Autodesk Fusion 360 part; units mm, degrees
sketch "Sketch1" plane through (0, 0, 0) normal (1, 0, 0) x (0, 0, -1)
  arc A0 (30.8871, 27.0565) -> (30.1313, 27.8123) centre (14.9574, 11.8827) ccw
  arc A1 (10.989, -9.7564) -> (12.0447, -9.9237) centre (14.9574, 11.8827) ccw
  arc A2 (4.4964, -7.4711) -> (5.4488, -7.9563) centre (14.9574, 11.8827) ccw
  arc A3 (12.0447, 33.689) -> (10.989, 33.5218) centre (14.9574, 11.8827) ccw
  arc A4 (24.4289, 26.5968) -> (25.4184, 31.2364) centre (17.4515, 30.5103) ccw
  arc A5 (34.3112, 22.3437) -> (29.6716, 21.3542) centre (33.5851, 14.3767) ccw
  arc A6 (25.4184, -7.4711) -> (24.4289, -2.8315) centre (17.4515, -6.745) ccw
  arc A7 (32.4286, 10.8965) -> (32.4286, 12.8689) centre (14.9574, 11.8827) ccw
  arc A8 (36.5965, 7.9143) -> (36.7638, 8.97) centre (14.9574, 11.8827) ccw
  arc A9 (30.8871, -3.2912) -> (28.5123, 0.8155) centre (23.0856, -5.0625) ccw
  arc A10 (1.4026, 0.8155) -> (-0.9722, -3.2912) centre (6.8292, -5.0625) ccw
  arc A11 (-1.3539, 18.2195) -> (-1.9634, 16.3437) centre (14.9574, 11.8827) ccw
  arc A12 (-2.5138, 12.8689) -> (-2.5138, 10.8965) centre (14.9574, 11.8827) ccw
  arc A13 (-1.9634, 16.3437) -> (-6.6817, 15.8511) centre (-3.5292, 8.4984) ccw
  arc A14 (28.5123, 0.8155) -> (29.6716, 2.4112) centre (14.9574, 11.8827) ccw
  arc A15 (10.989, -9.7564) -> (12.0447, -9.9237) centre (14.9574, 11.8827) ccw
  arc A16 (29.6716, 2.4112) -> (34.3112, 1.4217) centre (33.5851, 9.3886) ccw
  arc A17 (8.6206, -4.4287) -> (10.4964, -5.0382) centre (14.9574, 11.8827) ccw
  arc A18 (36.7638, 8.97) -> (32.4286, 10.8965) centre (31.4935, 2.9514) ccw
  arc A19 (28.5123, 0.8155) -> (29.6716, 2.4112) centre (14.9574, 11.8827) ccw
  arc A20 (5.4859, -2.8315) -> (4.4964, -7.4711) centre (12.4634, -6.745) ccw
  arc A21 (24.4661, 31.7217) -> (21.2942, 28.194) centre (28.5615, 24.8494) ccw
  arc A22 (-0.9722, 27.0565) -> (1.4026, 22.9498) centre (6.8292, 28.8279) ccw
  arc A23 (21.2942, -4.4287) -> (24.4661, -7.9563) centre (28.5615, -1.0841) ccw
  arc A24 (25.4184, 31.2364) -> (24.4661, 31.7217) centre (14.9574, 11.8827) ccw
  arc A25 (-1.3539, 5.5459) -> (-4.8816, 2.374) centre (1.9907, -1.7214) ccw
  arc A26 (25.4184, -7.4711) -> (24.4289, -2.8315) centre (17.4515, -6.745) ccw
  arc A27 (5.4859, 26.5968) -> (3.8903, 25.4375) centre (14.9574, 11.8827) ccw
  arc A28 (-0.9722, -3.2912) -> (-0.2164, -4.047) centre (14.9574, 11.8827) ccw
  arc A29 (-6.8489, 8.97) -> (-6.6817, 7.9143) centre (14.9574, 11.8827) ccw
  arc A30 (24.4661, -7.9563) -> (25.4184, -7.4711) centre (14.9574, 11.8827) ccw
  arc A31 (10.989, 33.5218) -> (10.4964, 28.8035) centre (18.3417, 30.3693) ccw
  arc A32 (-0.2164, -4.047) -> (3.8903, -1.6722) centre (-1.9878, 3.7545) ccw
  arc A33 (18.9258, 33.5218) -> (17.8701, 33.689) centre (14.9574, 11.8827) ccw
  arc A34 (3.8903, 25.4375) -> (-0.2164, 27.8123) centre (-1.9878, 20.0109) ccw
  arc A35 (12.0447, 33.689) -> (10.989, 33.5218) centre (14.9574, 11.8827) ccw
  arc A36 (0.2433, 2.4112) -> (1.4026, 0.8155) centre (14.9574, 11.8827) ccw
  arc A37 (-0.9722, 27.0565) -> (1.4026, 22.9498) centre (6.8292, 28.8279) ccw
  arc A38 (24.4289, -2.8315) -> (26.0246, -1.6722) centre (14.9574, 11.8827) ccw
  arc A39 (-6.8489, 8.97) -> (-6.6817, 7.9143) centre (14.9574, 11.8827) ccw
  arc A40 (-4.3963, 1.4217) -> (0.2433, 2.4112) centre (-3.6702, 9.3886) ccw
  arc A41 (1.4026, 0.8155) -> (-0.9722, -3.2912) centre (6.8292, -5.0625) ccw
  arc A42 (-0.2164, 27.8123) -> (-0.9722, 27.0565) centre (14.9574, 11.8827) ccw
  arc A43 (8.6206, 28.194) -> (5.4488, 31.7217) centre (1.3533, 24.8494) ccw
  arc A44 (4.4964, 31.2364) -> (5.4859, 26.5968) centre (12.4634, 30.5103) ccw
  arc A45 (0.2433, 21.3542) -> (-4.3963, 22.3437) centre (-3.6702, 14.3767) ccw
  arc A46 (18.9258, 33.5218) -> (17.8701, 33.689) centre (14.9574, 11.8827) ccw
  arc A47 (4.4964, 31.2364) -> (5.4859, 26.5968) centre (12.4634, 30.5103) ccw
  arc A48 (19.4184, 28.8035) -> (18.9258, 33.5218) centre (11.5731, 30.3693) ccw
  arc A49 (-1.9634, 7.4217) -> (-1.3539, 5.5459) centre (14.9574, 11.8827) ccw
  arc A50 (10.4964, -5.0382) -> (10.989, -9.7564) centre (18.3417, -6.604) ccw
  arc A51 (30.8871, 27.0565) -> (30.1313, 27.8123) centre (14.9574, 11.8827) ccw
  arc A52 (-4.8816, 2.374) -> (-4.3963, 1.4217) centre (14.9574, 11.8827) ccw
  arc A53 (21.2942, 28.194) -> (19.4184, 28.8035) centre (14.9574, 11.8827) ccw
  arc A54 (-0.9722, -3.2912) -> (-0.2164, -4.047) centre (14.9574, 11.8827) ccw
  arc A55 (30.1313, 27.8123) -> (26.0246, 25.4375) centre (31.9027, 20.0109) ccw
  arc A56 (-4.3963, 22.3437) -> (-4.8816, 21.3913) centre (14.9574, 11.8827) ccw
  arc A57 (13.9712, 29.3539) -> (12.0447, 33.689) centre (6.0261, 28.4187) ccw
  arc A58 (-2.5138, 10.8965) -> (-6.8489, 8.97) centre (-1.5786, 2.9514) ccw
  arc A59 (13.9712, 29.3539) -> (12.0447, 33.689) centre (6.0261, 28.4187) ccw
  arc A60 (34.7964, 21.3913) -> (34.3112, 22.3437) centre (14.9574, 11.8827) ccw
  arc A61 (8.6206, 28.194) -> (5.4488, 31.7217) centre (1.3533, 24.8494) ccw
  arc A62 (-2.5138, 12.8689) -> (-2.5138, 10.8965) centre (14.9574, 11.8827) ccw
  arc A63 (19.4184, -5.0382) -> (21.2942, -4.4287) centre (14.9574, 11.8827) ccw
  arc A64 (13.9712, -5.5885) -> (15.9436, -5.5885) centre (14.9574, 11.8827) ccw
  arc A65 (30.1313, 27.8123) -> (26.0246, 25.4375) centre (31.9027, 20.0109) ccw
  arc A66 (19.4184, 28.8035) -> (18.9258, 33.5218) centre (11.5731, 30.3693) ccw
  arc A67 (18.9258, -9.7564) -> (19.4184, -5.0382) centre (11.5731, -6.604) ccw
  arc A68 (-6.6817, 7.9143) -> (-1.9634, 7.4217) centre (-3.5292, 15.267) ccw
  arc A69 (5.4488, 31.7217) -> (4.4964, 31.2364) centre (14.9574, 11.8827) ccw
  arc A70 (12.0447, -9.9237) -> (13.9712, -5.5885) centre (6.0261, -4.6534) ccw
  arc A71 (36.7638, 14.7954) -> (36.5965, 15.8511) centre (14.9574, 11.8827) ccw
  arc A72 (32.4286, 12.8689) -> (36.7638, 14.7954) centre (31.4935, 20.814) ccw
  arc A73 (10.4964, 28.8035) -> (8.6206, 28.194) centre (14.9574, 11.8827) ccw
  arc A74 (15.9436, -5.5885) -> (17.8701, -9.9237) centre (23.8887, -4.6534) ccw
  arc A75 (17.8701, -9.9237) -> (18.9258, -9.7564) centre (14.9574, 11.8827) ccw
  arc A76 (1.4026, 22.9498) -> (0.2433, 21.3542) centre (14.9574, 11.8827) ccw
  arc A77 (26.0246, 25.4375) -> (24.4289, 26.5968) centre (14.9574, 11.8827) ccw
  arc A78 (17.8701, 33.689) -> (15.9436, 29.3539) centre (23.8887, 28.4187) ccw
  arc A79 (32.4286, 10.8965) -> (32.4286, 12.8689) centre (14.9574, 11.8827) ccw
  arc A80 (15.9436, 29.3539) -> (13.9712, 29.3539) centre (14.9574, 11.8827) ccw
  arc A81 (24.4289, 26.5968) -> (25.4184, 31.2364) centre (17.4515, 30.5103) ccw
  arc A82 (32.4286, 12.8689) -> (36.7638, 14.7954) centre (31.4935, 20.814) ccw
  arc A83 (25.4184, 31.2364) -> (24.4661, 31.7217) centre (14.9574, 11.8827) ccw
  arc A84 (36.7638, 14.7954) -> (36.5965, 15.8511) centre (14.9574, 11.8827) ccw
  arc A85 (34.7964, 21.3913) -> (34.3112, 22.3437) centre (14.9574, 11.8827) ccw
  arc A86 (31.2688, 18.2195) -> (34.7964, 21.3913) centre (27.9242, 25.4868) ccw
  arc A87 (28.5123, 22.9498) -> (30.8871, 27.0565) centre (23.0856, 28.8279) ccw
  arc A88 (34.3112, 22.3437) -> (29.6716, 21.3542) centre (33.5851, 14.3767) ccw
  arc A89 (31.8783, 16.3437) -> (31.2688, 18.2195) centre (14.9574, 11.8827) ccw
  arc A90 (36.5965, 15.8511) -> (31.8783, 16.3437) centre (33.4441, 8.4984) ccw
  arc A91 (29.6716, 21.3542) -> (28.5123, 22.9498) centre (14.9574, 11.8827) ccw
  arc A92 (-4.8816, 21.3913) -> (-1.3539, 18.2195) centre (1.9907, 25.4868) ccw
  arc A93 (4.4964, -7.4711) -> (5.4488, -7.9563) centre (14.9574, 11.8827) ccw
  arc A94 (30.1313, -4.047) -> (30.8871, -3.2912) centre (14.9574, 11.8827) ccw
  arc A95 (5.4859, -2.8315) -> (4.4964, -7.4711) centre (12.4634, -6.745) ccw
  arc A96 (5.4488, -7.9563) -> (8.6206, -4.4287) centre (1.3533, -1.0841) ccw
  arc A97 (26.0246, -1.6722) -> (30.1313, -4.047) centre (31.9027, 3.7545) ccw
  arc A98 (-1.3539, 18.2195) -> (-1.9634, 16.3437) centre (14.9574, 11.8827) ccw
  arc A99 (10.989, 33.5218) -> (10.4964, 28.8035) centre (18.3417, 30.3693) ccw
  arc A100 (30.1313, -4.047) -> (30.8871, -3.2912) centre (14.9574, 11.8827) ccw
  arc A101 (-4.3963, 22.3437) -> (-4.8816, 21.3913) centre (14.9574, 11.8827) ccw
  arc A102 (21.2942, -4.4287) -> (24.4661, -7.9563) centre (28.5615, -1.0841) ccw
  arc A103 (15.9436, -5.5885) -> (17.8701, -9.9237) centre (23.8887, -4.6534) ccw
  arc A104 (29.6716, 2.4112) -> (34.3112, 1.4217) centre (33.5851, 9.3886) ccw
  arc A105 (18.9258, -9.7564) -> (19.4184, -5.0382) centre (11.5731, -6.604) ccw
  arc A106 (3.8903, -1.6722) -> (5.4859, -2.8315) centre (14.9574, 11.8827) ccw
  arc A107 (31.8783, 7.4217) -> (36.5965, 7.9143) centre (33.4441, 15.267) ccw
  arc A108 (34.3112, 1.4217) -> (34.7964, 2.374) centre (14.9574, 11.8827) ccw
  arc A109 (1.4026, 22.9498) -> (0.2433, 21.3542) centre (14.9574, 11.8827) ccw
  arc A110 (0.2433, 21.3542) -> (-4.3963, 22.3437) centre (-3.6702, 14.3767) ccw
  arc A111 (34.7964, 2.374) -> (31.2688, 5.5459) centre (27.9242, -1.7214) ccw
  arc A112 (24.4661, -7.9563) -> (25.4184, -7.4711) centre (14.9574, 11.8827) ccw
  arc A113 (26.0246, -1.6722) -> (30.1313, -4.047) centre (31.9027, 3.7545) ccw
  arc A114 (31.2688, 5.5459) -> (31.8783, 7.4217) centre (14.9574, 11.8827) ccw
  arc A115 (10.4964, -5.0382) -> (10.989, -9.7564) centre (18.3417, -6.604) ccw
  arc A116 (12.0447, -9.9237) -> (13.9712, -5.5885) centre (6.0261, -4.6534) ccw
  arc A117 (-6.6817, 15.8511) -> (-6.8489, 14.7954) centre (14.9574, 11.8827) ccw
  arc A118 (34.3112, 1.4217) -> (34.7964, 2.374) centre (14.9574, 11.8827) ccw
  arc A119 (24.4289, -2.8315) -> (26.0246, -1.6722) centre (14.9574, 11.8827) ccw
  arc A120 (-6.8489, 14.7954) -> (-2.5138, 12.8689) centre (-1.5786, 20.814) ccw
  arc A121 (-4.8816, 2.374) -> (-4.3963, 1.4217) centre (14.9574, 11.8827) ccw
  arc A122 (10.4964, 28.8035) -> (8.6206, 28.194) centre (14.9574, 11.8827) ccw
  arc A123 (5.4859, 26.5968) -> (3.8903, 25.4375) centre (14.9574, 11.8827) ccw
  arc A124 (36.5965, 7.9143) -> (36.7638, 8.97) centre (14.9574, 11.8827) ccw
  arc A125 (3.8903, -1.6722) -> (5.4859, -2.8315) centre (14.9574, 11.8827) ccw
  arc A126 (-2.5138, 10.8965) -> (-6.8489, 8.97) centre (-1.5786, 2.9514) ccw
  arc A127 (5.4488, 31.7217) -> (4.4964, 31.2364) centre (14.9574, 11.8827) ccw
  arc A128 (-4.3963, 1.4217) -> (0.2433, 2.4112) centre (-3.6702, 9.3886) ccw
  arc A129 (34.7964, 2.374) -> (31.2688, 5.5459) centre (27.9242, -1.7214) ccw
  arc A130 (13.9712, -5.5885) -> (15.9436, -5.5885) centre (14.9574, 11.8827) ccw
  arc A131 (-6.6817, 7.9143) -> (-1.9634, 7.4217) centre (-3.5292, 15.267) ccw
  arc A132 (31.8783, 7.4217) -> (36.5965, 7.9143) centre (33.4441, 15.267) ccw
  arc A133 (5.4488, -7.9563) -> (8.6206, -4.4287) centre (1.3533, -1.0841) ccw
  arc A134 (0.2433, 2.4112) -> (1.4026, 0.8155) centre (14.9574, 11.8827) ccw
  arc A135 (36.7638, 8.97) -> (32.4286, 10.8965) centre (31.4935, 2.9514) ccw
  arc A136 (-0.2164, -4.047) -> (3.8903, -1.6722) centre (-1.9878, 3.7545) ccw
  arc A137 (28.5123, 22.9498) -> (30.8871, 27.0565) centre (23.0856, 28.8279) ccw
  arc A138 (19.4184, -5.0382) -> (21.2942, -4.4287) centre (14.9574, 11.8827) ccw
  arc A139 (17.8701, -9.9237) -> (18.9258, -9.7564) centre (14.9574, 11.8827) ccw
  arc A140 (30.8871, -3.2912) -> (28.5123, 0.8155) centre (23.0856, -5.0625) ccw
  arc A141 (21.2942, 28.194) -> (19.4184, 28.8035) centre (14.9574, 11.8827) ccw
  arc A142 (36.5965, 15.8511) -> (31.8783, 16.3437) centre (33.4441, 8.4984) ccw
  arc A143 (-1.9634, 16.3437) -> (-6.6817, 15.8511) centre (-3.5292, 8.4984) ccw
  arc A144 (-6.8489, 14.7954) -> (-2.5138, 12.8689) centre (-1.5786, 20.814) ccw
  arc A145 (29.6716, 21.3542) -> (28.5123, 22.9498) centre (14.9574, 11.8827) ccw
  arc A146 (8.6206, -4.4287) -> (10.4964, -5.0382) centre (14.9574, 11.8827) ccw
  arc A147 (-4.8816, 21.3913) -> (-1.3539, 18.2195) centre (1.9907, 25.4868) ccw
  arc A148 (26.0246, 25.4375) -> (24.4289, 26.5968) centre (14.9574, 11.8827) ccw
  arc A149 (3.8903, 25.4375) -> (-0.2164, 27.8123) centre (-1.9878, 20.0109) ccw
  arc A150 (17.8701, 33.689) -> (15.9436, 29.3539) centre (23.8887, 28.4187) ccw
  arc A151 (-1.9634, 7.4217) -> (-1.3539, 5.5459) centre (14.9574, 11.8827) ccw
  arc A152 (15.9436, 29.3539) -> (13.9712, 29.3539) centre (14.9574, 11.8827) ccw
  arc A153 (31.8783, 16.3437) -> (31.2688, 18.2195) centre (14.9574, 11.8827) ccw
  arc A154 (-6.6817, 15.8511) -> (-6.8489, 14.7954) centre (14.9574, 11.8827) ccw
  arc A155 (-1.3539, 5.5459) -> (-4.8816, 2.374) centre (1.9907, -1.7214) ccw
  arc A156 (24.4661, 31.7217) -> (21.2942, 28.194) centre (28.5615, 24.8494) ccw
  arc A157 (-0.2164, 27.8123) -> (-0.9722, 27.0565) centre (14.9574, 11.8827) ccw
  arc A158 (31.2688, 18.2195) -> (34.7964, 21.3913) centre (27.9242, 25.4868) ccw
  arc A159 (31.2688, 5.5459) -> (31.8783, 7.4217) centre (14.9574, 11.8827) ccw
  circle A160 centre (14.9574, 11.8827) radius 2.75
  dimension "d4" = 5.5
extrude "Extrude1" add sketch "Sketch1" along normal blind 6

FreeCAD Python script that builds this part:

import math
import FreeCAD as App
import Part
import Sketcher
Q = App.Units.Quantity

doc = App.newDocument("Part")
body = doc.addObject("PartDesign::Body", "Body")

sketch1 = doc.addObject("Sketcher::SketchObject", "Sketch")
body.addObject(sketch1)
sketch1.AttachmentSupport = (doc.YZ_Plane, [""])
sketch1.MapMode = "FlatFace"
sketch1.addGeometry([
    Part.ArcOfCircle(Part.Circle(App.Vector(28.8279, -23.0856, 0), App.Vector(0, 0, 1), 8.000071), math.radians(-137.286602), math.radians(-102.792616)),
    Part.ArcOfCircle(Part.Circle(App.Vector(11.886765, -14.961565, 0), App.Vector(0, 0, 1), 21.99417), math.radians(-46.392354), math.radians(-43.607646)),
    Part.ArcOfCircle(Part.Circle(App.Vector(20.0109, -31.9027, 0), App.Vector(0, 0, 1), 7.999981), math.radians(12.792774), math.radians(47.287129)),
    Part.ArcOfCircle(Part.Circle(App.Vector(11.893148, -14.965451, 0), App.Vector(0, 0, 1), 17.48583), math.radians(-39.23211), math.radians(-32.765826)),
    Part.ArcOfCircle(Part.Circle(App.Vector(30.5103, -17.4515, 0), App.Vector(0, 0, 1), 7.999975), math.radians(-119.287294), math.radians(-84.792473)),
    Part.ArcOfCircle(Part.Circle(App.Vector(11.777378, -14.902114, 0), App.Vector(0, 0, 1), 22.118902), math.radians(-28.388224), math.radians(-25.619314)),
    Part.ArcOfCircle(Part.Circle(App.Vector(24.8494, -28.5615, 0), App.Vector(0, 0, 1), 8.000051), math.radians(30.791923), math.radians(65.286886)),
    Part.ArcOfCircle(Part.Circle(App.Vector(11.878873, -14.956036, 0), App.Vector(0, 0, 1), 17.50302), math.radians(-21.230346), math.radians(-14.770518)),
    Part.ArcOfCircle(Part.Circle(App.Vector(30.3693, -11.5731, 0), App.Vector(0, 0, 1), 8.000029), math.radians(-101.287038), math.radians(-66.79257)),
    Part.ArcOfCircle(Part.Circle(App.Vector(11.894324, -14.959386, 0), App.Vector(0, 0, 1), 21.988182), math.radians(-10.392386), math.radians(-7.60693)),
    Part.ArcOfCircle(Part.Circle(App.Vector(28.4187, -23.8887, 0), App.Vector(0, 0, 1), 7.999976), math.radians(48.79238), math.radians(83.286732)),
    Part.ArcOfCircle(Part.Circle(App.Vector(11.8827, -14.9574, 0), App.Vector(0, 0, 1), 17.499012), math.radians(-3.230757), math.radians(3.230757)),
    Part.ArcOfCircle(Part.Circle(App.Vector(28.4187, -6.0261, 0), App.Vector(0, 0, 1), 7.999951), math.radians(-83.286732), math.radians(-48.79238)),
    Part.ArcOfCircle(Part.Circle(App.Vector(11.871018, -14.959105, 0), App.Vector(0, 0, 1), 22.011772), math.radians(7.608423), math.radians(10.390893)),
    Part.ArcOfCircle(Part.Circle(App.Vector(30.3693, -18.3417, 0), App.Vector(0, 0, 1), 8.000028), math.radians(66.79257), math.radians(101.287038)),
    Part.ArcOfCircle(Part.Circle(App.Vector(11.886596, -14.956254, 0), App.Vector(0, 0, 1), 17.494912), math.radians(14.769019), math.radians(21.231845)),
    Part.ArcOfCircle(Part.Circle(App.Vector(24.848771, -1.352343, 0), App.Vector(0, 0, 1), 8.001132), math.radians(-65.285656), math.radians(-30.796116)),
    Part.ArcOfCircle(Part.Circle(App.Vector(11.923014, -14.937472, 0), App.Vector(0, 0, 1), 21.955019), math.radians(25.606428), math.radians(28.396243)),
    Part.ArcOfCircle(Part.Circle(App.Vector(30.5103, -12.4634, 0), App.Vector(0, 0, 1), 8.000019), math.radians(84.792538), math.radians(119.286944)),
    Part.ArcOfCircle(Part.Circle(App.Vector(11.888232, -14.953614, 0), App.Vector(0, 0, 1), 17.492272), math.radians(32.768858), math.radians(39.232493)),
    Part.ArcOfCircle(Part.Circle(App.Vector(20.0109, 1.9878, 0), App.Vector(0, 0, 1), 8.000003), math.radians(-47.287129), math.radians(-12.792774)),
    Part.ArcOfCircle(Part.Circle(App.Vector(11.8827, -14.9574, 0), App.Vector(0, 0, 1), 21.999917), math.radians(43.60801), math.radians(46.39199)),
    Part.ArcOfCircle(Part.Circle(App.Vector(28.8279, -6.8292, 0), App.Vector(0, 0, 1), 7.999981), math.radians(102.792774), math.radians(137.287129)),
    Part.ArcOfCircle(Part.Circle(App.Vector(11.878606, -14.962714, 0), App.Vector(0, 0, 1), 17.505657), math.radians(50.769981), math.radians(57.228668)),
    Part.ArcOfCircle(Part.Circle(App.Vector(14.3767, 3.6702, 0), App.Vector(0, 0, 1), 8.000062), math.radians(-29.286944), math.radians(5.207462)),
    Part.ArcOfCircle(Part.Circle(App.Vector(11.861713, -14.997382, 0), App.Vector(0, 0, 1), 22.045112), math.radians(61.609459), math.radians(64.38787)),
    Part.ArcOfCircle(Part.Circle(App.Vector(25.486073, -1.989815, 0), App.Vector(0, 0, 1), 7.99897), math.radians(120.791308), math.radians(155.290465)),
    Part.ArcOfCircle(Part.Circle(App.Vector(11.881336, -14.961227, 0), App.Vector(0, 0, 1), 17.50302), math.radians(68.769654), math.radians(75.229482)),
    Part.ArcOfCircle(Part.Circle(App.Vector(8.4984, 3.5292, 0), App.Vector(0, 0, 1), 8.000029), math.radians(-11.287038), math.radians(23.20743)),
    Part.ArcOfCircle(Part.Circle(App.Vector(11.884686, -14.945776, 0), App.Vector(0, 0, 1), 21.988182), math.radians(79.607614), math.radians(82.39307)),
    Part.ArcOfCircle(Part.Circle(App.Vector(20.814, 1.5786, 0), App.Vector(0, 0, 1), 7.999976), math.radians(138.79238), math.radians(173.286732)),
    Part.ArcOfCircle(Part.Circle(App.Vector(11.8827, -14.9574, 0), App.Vector(0, 0, 1), 17.499012), math.radians(86.769243), math.radians(93.230757)),
    Part.ArcOfCircle(Part.Circle(App.Vector(2.9514, 1.5786, 0), App.Vector(0, 0, 1), 7.999951), math.radians(6.713268), math.radians(41.20762)),
    Part.ArcOfCircle(Part.Circle(App.Vector(11.884405, -14.969082, 0), App.Vector(0, 0, 1), 22.011772), math.radians(97.608423), math.radians(100.390893)),
    Part.ArcOfCircle(Part.Circle(App.Vector(15.267, 3.5292, 0), App.Vector(0, 0, 1), 8.000028), math.radians(156.79257), math.radians(191.287038)),
    Part.ArcOfCircle(Part.Circle(App.Vector(11.881554, -14.953504, 0), App.Vector(0, 0, 1), 17.494912), math.radians(104.769019), math.radians(111.231845)),
    Part.ArcOfCircle(Part.Circle(App.Vector(-1.7214, -1.9907, 0), App.Vector(0, 0, 1), 8), math.radians(24.713114), math.radians(59.208077)),
    Part.ArcOfCircle(Part.Circle(App.Vector(11.830552, -14.851906, 0), App.Vector(0, 0, 1), 21.882359), math.radians(115.604346), math.radians(118.403193)),
    Part.ArcOfCircle(Part.Circle(App.Vector(9.3886, 3.6702, 0), App.Vector(0, 0, 1), 7.99992), math.radians(174.792473), math.radians(209.287294)),
    Part.ArcOfCircle(Part.Circle(App.Vector(11.89016, -14.968302, 0), App.Vector(0, 0, 1), 17.512177), math.radians(122.770695), math.radians(129.227241)),
    Part.ArcOfCircle(Part.Circle(App.Vector(-5.0625, -6.8292, 0), App.Vector(0, 0, 1), 7.999929), math.radians(42.713357), math.radians(77.207924)),
    Part.ArcOfCircle(Part.Circle(App.Vector(11.886767, -14.961567, 0), App.Vector(0, 0, 1), 22.005809), math.radians(133.608382), math.radians(136.391618)),
    Part.ArcOfCircle(Part.Circle(App.Vector(3.7545, 1.9878, 0), App.Vector(0, 0, 1), 8.000079), math.radians(-167.207384), math.radians(-132.713398)),
    Part.ArcOfCircle(Part.Circle(App.Vector(11.889667, -14.962768, 0), App.Vector(0, 0, 1), 17.507821), math.radians(140.77038), math.radians(147.228269)),
    Part.ArcOfCircle(Part.Circle(App.Vector(-6.745, -12.4634, 0), App.Vector(0, 0, 1), 8.000062), math.radians(60.713056), math.radians(95.207462)),
    Part.ArcOfCircle(Part.Circle(App.Vector(11.791053, -14.909293, 0), App.Vector(0, 0, 1), 21.89655), math.radians(151.604867), math.radians(154.402014)),
    Part.ArcOfCircle(Part.Circle(App.Vector(-1.0841, -1.3533, 0), App.Vector(0, 0, 1), 8.000016), math.radians(-149.207095), math.radians(-114.713114)),
    Part.ArcOfCircle(Part.Circle(App.Vector(11.887561, -14.959132, 0), App.Vector(0, 0, 1), 17.50421), math.radians(158.769874), math.radians(165.229262)),
    Part.ArcOfCircle(Part.Circle(App.Vector(-6.604, -18.3417, 0), App.Vector(0, 0, 1), 8.000029), math.radians(78.712962), math.radians(113.206772)),
    Part.ArcOfCircle(Part.Circle(App.Vector(12.037721, -14.983887, 0), App.Vector(0, 0, 1), 22.15723), math.radians(169.612927), math.radians(172.377168)),
    Part.ArcOfCircle(Part.Circle(App.Vector(-4.6534, -6.0261, 0), App.Vector(0, 0, 1), 7.999976), math.radians(-131.20762), math.radians(-96.712556)),
    Part.ArcOfCircle(Part.Circle(App.Vector(11.8827, -14.9574, 0), App.Vector(0, 0, 1), 17.499012), math.radians(176.769243), math.radians(183.230757)),
    Part.ArcOfCircle(Part.Circle(App.Vector(-4.6534, -23.8887, 0), App.Vector(0, 0, 1), 7.999939), math.radians(96.712556), math.radians(131.20762)),
    Part.ArcOfCircle(Part.Circle(App.Vector(11.729274, -14.979793, 0), App.Vector(0, 0, 1), 21.845026), math.radians(-172.396924), math.radians(-169.59317)),
    Part.ArcOfCircle(Part.Circle(App.Vector(-6.604, -11.5731, 0), App.Vector(0, 0, 1), 7.999989), math.radians(-113.206772), math.radians(-78.712962)),
    Part.ArcOfCircle(Part.Circle(App.Vector(11.877752, -14.958855, 0), App.Vector(0, 0, 1), 17.493913), math.radians(-165.231165), math.radians(-158.767971)),
    Part.ArcOfCircle(Part.Circle(App.Vector(-1.0841, -28.5615, 0), App.Vector(0, 0, 1), 8), math.radians(114.713114), math.radians(149.207711)),
    Part.ArcOfCircle(Part.Circle(App.Vector(11.910318, -14.943748, 0), App.Vector(0, 0, 1), 22.030835), math.radians(-154.390938), math.radians(-151.611076)),
    Part.ArcOfCircle(Part.Circle(App.Vector(-6.745, -17.4515, 0), App.Vector(0, 0, 1), 7.99992), math.radians(-95.207527), math.radians(-60.712706)),
    Part.ArcOfCircle(Part.Circle(App.Vector(11.891878, -14.951119, 0), App.Vector(0, 0, 1), 17.510174), math.radians(-147.229674), math.radians(-140.77239)),
    Part.ArcOfCircle(Part.Circle(App.Vector(3.7545, -31.9027, 0), App.Vector(0, 0, 1), 8.000071), math.radians(132.713398), math.radians(167.207384)),
    Part.ArcOfCircle(Part.Circle(App.Vector(11.8827, -14.9574, 0), App.Vector(0, 0, 1), 22.000059), math.radians(-136.391981), math.radians(-133.608019)),
    Part.ArcOfCircle(Part.Circle(App.Vector(-5.0625, -23.0856, 0), App.Vector(0, 0, 1), 8.000057), math.radians(-77.208083), math.radians(-42.713883)),
    Part.ArcOfCircle(Part.Circle(App.Vector(11.87592, -14.966199, 0), App.Vector(0, 0, 1), 17.487989), math.radians(-129.231711), math.radians(-122.766225)),
    Part.ArcOfCircle(Part.Circle(App.Vector(9.3886, -33.5851, 0), App.Vector(0, 0, 1), 7.999975), math.radians(150.712706), math.radians(185.207527)),
    Part.ArcOfCircle(Part.Circle(App.Vector(11.868421, -14.984602, 0), App.Vector(0, 0, 1), 21.969328), math.radians(-118.392816), math.radians(-115.60517)),
    Part.ArcOfCircle(Part.Circle(App.Vector(-1.7214, -27.9242, 0), App.Vector(0, 0, 1), 7.999965), math.radians(-59.207711), math.radians(-24.713114)),
    Part.ArcOfCircle(Part.Circle(App.Vector(11.884432, -14.952539, 0), App.Vector(0, 0, 1), 17.50421), math.radians(-111.230126), math.radians(-104.770738)),
    Part.ArcOfCircle(Part.Circle(App.Vector(15.267, -33.4441, 0), App.Vector(0, 0, 1), 8.000029), math.radians(168.712962), math.radians(203.206772)),
    Part.ArcOfCircle(Part.Circle(App.Vector(11.909187, -14.802379, 0), App.Vector(0, 0, 1), 22.15723), math.radians(-100.387073), math.radians(-97.622832)),
    Part.ArcOfCircle(Part.Circle(App.Vector(2.9514, -31.4935, 0), App.Vector(0, 0, 1), 7.999976), math.radians(-41.20762), math.radians(-6.712556)),
    Part.ArcOfCircle(Part.Circle(App.Vector(11.8827, -14.9574, 0), App.Vector(0, 0, 1), 17.499012), math.radians(-93.230757), math.radians(-86.769243)),
    Part.ArcOfCircle(Part.Circle(App.Vector(20.814, -31.4935, 0), App.Vector(0, 0, 1), 7.999939), math.radians(-173.287444), math.radians(-138.79238)),
    Part.ArcOfCircle(Part.Circle(App.Vector(11.905093, -15.110826, 0), App.Vector(0, 0, 1), 21.845026), math.radians(-82.396924), math.radians(-79.59317)),
    Part.ArcOfCircle(Part.Circle(App.Vector(8.4984, -33.4441, 0), App.Vector(0, 0, 1), 7.999989), math.radians(-23.206772), math.radians(11.287038)),
    Part.ArcOfCircle(Part.Circle(App.Vector(11.884155, -14.962348, 0), App.Vector(0, 0, 1), 17.493913), math.radians(-75.231165), math.radians(-68.767971)),
    Part.ArcOfCircle(Part.Circle(App.Vector(25.4868, -27.9242, 0), App.Vector(0, 0, 1), 8), math.radians(-155.286886), math.radians(-120.792905)),
    Part.ArcOfCircle(Part.Circle(App.Vector(11.836398, -14.863731, 0), App.Vector(0, 0, 1), 22.104467), math.radians(-64.388856), math.radians(-61.618025)),
    Part.ArcOfCircle(Part.Circle(App.Vector(14.3767, -33.5851, 0), App.Vector(0, 0, 1), 8.000019), math.radians(-5.207462), math.radians(29.286944)),
    Part.ArcOfCircle(Part.Circle(App.Vector(11.887662, -14.964651, 0), App.Vector(0, 0, 1), 17.490274), math.radians(-57.231512), math.radians(-50.767137)),
    Part.Circle(App.Vector(11.8827, -14.9574, 0), App.Vector(0, 0, 1), 2.75),
], False)
sketch1.addConstraint([
    Sketcher.Constraint("Coincident", 0, 2, 1, 1),
    Sketcher.Constraint("Coincident", 1, 2, 2, 1),
    Sketcher.Constraint("Coincident", 2, 2, 3, 1),
    Sketcher.Constraint("Coincident", 3, 2, 4, 1),
    Sketcher.Constraint("Coincident", 4, 2, 5, 1),
    Sketcher.Constraint("Coincident", 5, 2, 6, 1),
    Sketcher.Constraint("Coincident", 6, 2, 7, 1),
    Sketcher.Constraint("Coincident", 7, 2, 8, 1),
    Sketcher.Constraint("Coincident", 8, 2, 9, 1),
    Sketcher.Constraint("Coincident", 9, 2, 10, 1),
    Sketcher.Constraint("Coincident", 10, 2, 11, 1),
    Sketcher.Constraint("Coincident", 11, 2, 12, 1),
    Sketcher.Constraint("Coincident", 12, 2, 13, 1),
    Sketcher.Constraint("Coincident", 13, 2, 14, 1),
    Sketcher.Constraint("Coincident", 14, 2, 15, 1),
    Sketcher.Constraint("Coincident", 15, 2, 16, 1),
    Sketcher.Constraint("Coincident", 16, 2, 17, 1),
    Sketcher.Constraint("Coincident", 17, 2, 18, 1),
    Sketcher.Constraint("Coincident", 18, 2, 19, 1),
    Sketcher.Constraint("Coincident", 19, 2, 20, 1),
    Sketcher.Constraint("Coincident", 20, 2, 21, 1),
    Sketcher.Constraint("Coincident", 21, 2, 22, 1),
    Sketcher.Constraint("Coincident", 22, 2, 23, 1),
    Sketcher.Constraint("Coincident", 23, 2, 24, 1),
    Sketcher.Constraint("Coincident", 24, 2, 25, 1),
    Sketcher.Constraint("Coincident", 25, 2, 26, 1),
    Sketcher.Constraint("Coincident", 26, 2, 27, 1),
    Sketcher.Constraint("Coincident", 27, 2, 28, 1),
    Sketcher.Constraint("Coincident", 28, 2, 29, 1),
    Sketcher.Constraint("Coincident", 29, 2, 30, 1),
    Sketcher.Constraint("Coincident", 30, 2, 31, 1),
    Sketcher.Constraint("Coincident", 31, 2, 32, 1),
    Sketcher.Constraint("Coincident", 32, 2, 33, 1),
    Sketcher.Constraint("Coincident", 33, 2, 34, 1),
    Sketcher.Constraint("Coincident", 34, 2, 35, 1),
    Sketcher.Constraint("Coincident", 35, 2, 36, 1),
    Sketcher.Constraint("Coincident", 36, 2, 37, 1),
    Sketcher.Constraint("Coincident", 37, 2, 38, 1),
    Sketcher.Constraint("Coincident", 38, 2, 39, 1),
    Sketcher.Constraint("Coincident", 39, 2, 40, 1),
    Sketcher.Constraint("Coincident", 40, 2, 41, 1),
    Sketcher.Constraint("Coincident", 41, 2, 42, 1),
    Sketcher.Constraint("Coincident", 42, 2, 43, 1),
    Sketcher.Constraint("Coincident", 43, 2, 44, 1),
    Sketcher.Constraint("Coincident", 44, 2, 45, 1),
    Sketcher.Constraint("Coincident", 45, 2, 46, 1),
    Sketcher.Constraint("Coincident", 46, 2, 47, 1),
    Sketcher.Constraint("Coincident", 47, 2, 48, 1),
    Sketcher.Constraint("Coincident", 48, 2, 49, 1),
    Sketcher.Constraint("Coincident", 49, 2, 50, 1),
    Sketcher.Constraint("Coincident", 50, 2, 51, 1),
    Sketcher.Constraint("Coincident", 51, 2, 52, 1),
    Sketcher.Constraint("Coincident", 52, 2, 53, 1),
    Sketcher.Constraint("Coincident", 53, 2, 54, 1),
    Sketcher.Constraint("Coincident", 54, 2, 55, 1),
    Sketcher.Constraint("Coincident", 55, 2, 56, 1),
    Sketcher.Constraint("Coincident", 56, 2, 57, 1),
    Sketcher.Constraint("Coincident", 57, 2, 58, 1),
    Sketcher.Constraint("Coincident", 58, 2, 59, 1),
    Sketcher.Constraint("Coincident", 59, 2, 60, 1),
    Sketcher.Constraint("Coincident", 60, 2, 61, 1),
    Sketcher.Constraint("Coincident", 61, 2, 62, 1),
    Sketcher.Constraint("Coincident", 62, 2, 63, 1),
    Sketcher.Constraint("Coincident", 63, 2, 64, 1),
    Sketcher.Constraint("Coincident", 64, 2, 65, 1),
    Sketcher.Constraint("Coincident", 65, 2, 66, 1),
    Sketcher.Constraint("Coincident", 66, 2, 67, 1),
    Sketcher.Constraint("Coincident", 67, 2, 68, 1),
    Sketcher.Constraint("Coincident", 68, 2, 69, 1),
    Sketcher.Constraint("Coincident", 69, 2, 70, 1),
    Sketcher.Constraint("Coincident", 70, 2, 71, 1),
    Sketcher.Constraint("Coincident", 71, 2, 72, 1),
    Sketcher.Constraint("Coincident", 72, 2, 73, 1),
    Sketcher.Constraint("Coincident", 73, 2, 74, 1),
    Sketcher.Constraint("Coincident", 74, 2, 75, 1),
    Sketcher.Constraint("Coincident", 75, 2, 76, 1),
    Sketcher.Constraint("Coincident", 76, 2, 77, 1),
    Sketcher.Constraint("Coincident", 77, 2, 78, 1),
    Sketcher.Constraint("Coincident", 78, 2, 79, 1),
    Sketcher.Constraint("Coincident", 79, 2, 0, 1),
    Sketcher.Constraint("Coincident", 21, 3, 11, 3),
    Sketcher.Constraint("Coincident", 31, 3, 11, 3),
    Sketcher.Constraint("Coincident", 41, 3, 1, 3),
    Sketcher.Constraint("Coincident", 51, 3, 11, 3),
    Sketcher.Constraint("Coincident", 61, 3, 11, 3),
    Sketcher.Constraint("Coincident", 71, 3, 11, 3),
    Sketcher.Constraint("Coincident", 80, 3, 11, 3),
    Sketcher.Constraint("Diameter", 80, Q("5.5 mm")),
    Sketcher.Constraint("Radius", 0, Q("8 mm")),
    Sketcher.Constraint("Radius", 2, Q("8 mm")),
    Sketcher.Constraint("Radius", 4, Q("8 mm")),
    Sketcher.Constraint("Radius", 6, Q("8 mm")),
    Sketcher.Constraint("Radius", 8, Q("8 mm")),
    Sketcher.Constraint("Radius", 10, Q("8 mm")),
    Sketcher.Constraint("Radius", 12, Q("8 mm")),
    Sketcher.Constraint("Radius", 14, Q("8 mm")),
    Sketcher.Constraint("Radius", 18, Q("8 mm")),
    Sketcher.Constraint("Radius", 20, Q("8 mm")),
    Sketcher.Constraint("Radius", 21, Q("22 mm")),
    Sketcher.Constraint("Radius", 22, Q("8 mm")),
    Sketcher.Constraint("Radius", 24, Q("8 mm")),
    Sketcher.Constraint("Radius", 28, Q("8 mm")),
    Sketcher.Constraint("Radius", 30, Q("8 mm")),
    Sketcher.Constraint("Radius", 32, Q("8 mm")),
    Sketcher.Constraint("Radius", 34, Q("8 mm")),
    Sketcher.Constraint("Radius", 36, Q("8 mm")),
    Sketcher.Constraint("Radius", 38, Q("8 mm")),
    Sketcher.Constraint("Radius", 40, Q("8 mm")),
    Sketcher.Constraint("Radius", 42, Q("8 mm")),
    Sketcher.Constraint("Radius", 44, Q("8 mm")),
    Sketcher.Constraint("Radius", 46, Q("8 mm")),
    Sketcher.Constraint("Radius", 48, Q("8 mm")),
    Sketcher.Constraint("Radius", 50, Q("8 mm")),
    Sketcher.Constraint("Radius", 52, Q("8 mm")),
    Sketcher.Constraint("Radius", 54, Q("8 mm")),
    Sketcher.Constraint("Radius", 56, Q("8 mm")),
    Sketcher.Constraint("Radius", 58, Q("8 mm")),
    Sketcher.Constraint("Radius", 60, Q("8 mm")),
    Sketcher.Constraint("Radius", 61, Q("22 mm")),
    Sketcher.Constraint("Radius", 62, Q("8 mm")),
    Sketcher.Constraint("Radius", 64, Q("8 mm")),
    Sketcher.Constraint("Radius", 66, Q("8 mm")),
    Sketcher.Constraint("Radius", 68, Q("8 mm")),
    Sketcher.Constraint("Radius", 70, Q("8 mm")),
    Sketcher.Constraint("Radius", 72, Q("8 mm")),
    Sketcher.Constraint("Radius", 74, Q("8 mm")),
    Sketcher.Constraint("Radius", 76, Q("8 mm")),
    Sketcher.Constraint("Radius", 78, Q("8 mm")),
    Sketcher.Constraint("Radius", 5, Q("22.119 mm")),
    Sketcher.Constraint("Radius", 7, Q("17.503 mm")),
    Sketcher.Constraint("Radius", 11, Q("17.499 mm")),
    Sketcher.Constraint("Radius", 15, Q("17.495 mm")),
    Sketcher.Constraint("Radius", 17, Q("21.955 mm")),
    Sketcher.Constraint("Radius", 25, Q("22.045 mm")),
    Sketcher.Constraint("Radius", 26, Q("7.999 mm")),
    Sketcher.Constraint("Radius", 27, Q("17.503 mm")),
    Sketcher.Constraint("Radius", 31, Q("17.499 mm")),
    Sketcher.Constraint("Radius", 35, Q("17.495 mm")),
    Sketcher.Constraint("Radius", 51, Q("17.499 mm")),
    Sketcher.Constraint("Radius", 53, Q("21.845 mm")),
    Sketcher.Constraint("Radius", 55, Q("17.494 mm")),
    Sketcher.Constraint("Radius", 63, Q("17.488 mm")),
    Sketcher.Constraint("Radius", 71, Q("17.499 mm")),
    Sketcher.Constraint("Radius", 73, Q("21.845 mm")),
    Sketcher.Constraint("Radius", 75, Q("17.494 mm")),
    Sketcher.Constraint("Radius", 1, Q("21.9942 mm")),
    Sketcher.Constraint("Radius", 3, Q("17.4858 mm")),
    Sketcher.Constraint("Radius", 9, Q("21.9882 mm")),
    Sketcher.Constraint("Radius", 13, Q("22.0118 mm")),
    Sketcher.Constraint("Radius", 16, Q("8.0011 mm")),
    Sketcher.Constraint("Radius", 19, Q("17.4923 mm")),
    Sketcher.Constraint("Radius", 23, Q("17.5057 mm")),
    Sketcher.Constraint("Radius", 29, Q("21.9882 mm")),
    Sketcher.Constraint("Radius", 33, Q("22.0118 mm")),
    Sketcher.Constraint("Radius", 37, Q("21.8824 mm")),
    Sketcher.Constraint("Radius", 39, Q("17.5122 mm")),
    Sketcher.Constraint("Radius", 41, Q("22.0058 mm")),
    Sketcher.Constraint("Radius", 43, Q("17.5078 mm")),
    Sketcher.Constraint("Radius", 45, Q("21.8965 mm")),
    Sketcher.Constraint("Radius", 47, Q("17.5042 mm")),
    Sketcher.Constraint("Radius", 49, Q("22.1572 mm")),
    Sketcher.Constraint("Radius", 57, Q("22.0308 mm")),
    Sketcher.Constraint("Radius", 59, Q("17.5102 mm")),
    Sketcher.Constraint("Radius", 65, Q("21.9693 mm")),
    Sketcher.Constraint("Radius", 67, Q("17.5042 mm")),
    Sketcher.Constraint("Radius", 69, Q("22.1572 mm")),
    Sketcher.Constraint("Radius", 77, Q("22.1045 mm")),
    Sketcher.Constraint("Radius", 79, Q("17.4903 mm")),
    Sketcher.Constraint("DistanceY", 9, 2, -1, 1, Q("17.87 mm")),
    Sketcher.Constraint("DistanceX", -1, 1, 32, 2, Q("8.97 mm")),
    Sketcher.Constraint("DistanceX", -1, 1, 69, 2, Q("8.97 mm")),
    Sketcher.Constraint("DistanceX", -1, 1, 0, 3, Q("28.828 mm")),
    Sketcher.Constraint("DistanceX", -1, 1, 2, 3, Q("20.011 mm")),
    Sketcher.Constraint("DistanceY", 5, 3, -1, 1, Q("14.902 mm")),
    Sketcher.Constraint("DistanceY", 7, 3, -1, 1, Q("14.956 mm")),
    Sketcher.Constraint("DistanceY", 8, 3, -1, 1, Q("11.573 mm")),
    Sketcher.Constraint("DistanceY", 12, 3, -1, 1, Q("6.026 mm")),
    Sketcher.Constraint("DistanceX", -1, 1, 13, 3, Q("11.871 mm")),
    Sketcher.Constraint("DistanceY", 13, 3, -1, 1, Q("14.959 mm")),
    Sketcher.Constraint("DistanceX", -1, 1, 17, 3, Q("11.923 mm")),
    Sketcher.Constraint("DistanceX", -1, 1, 20, 3, Q("20.011 mm")),
    Sketcher.Constraint("DistanceX", -1, 1, 22, 3, Q("28.828 mm")),
    Sketcher.Constraint("DistanceX", -1, 1, 26, 3, Q("25.486 mm")),
    Sketcher.Constraint("DistanceX", -1, 1, 30, 3, Q("20.814 mm")),
    Sketcher.Constraint("DistanceY", 33, 3, -1, 1, Q("14.969 mm")),
    Sketcher.Constraint("DistanceX", -1, 1, 34, 3, Q("15.267 mm")),
    Sketcher.Constraint("DistanceY", 37, 3, -1, 1, Q("14.852 mm")),
    Sketcher.Constraint("DistanceX", 44, 3, -1, 1, Q("6.745 mm")),
    Sketcher.Constraint("DistanceX", -1, 1, 45, 3, Q("11.791 mm")),
    Sketcher.Constraint("DistanceX", 46, 3, -1, 1, Q("1.084 mm")),
    Sketcher.Constraint("DistanceX", 48, 3, -1, 1, Q("6.604 mm")),
    Sketcher.Constraint("DistanceY", 49, 3, -1, 1, Q("14.984 mm")),
    Sketcher.Constraint("DistanceY", 50, 3, -1, 1, Q("6.026 mm")),
    Sketcher.Constraint("DistanceX", 54, 3, -1, 1, Q("6.604 mm")),
    Sketcher.Constraint("DistanceY", 54, 3, -1, 1, Q("11.573 mm")),
    Sketcher.Constraint("DistanceX", 56, 3, -1, 1, Q("1.084 mm")),
    Sketcher.Constraint("DistanceX", 58, 3, -1, 1, Q("6.745 mm")),
    Sketcher.Constraint("DistanceY", 59, 3, -1, 1, Q("14.951 mm")),
    Sketcher.Constraint("DistanceX", -1, 1, 63, 3, Q("11.876 mm")),
    Sketcher.Constraint("DistanceY", 64, 3, -1, 1, Q("33.585 mm")),
    Sketcher.Constraint("DistanceX", -1, 1, 68, 3, Q("15.267 mm")),
    Sketcher.Constraint("DistanceY", 68, 3, -1, 1, Q("33.444 mm")),
    Sketcher.Constraint("DistanceX", -1, 1, 72, 3, Q("20.814 mm")),
    Sketcher.Constraint("DistanceX", -1, 1, 73, 3, Q("11.905 mm")),
    Sketcher.Constraint("DistanceY", 74, 3, -1, 1, Q("33.444 mm")),
    Sketcher.Constraint("DistanceY", 78, 3, -1, 1, Q("33.585 mm")),
    Sketcher.Constraint("DistanceY", 0, 2, -1, 1, Q("30.887 mm")),
    Sketcher.Constraint("DistanceY", 3, 2, -1, 1, Q("24.429 mm")),
    Sketcher.Constraint("DistanceY", 5, 2, -1, 1, Q("24.466 mm")),
    Sketcher.Constraint("DistanceX", -1, 1, 6, 2, Q("28.194 mm")),
    Sketcher.Constraint("DistanceX", -1, 1, 9, 2, Q("33.689 mm")),
    Sketcher.Constraint("DistanceX", -1, 1, 10, 2, Q("29.354 mm")),
    Sketcher.Constraint("DistanceX", -1, 1, 11, 2, Q("29.354 mm")),
    Sketcher.Constraint("DistanceX", -1, 1, 12, 2, Q("33.689 mm")),
    Sketcher.Constraint("DistanceY", 13, 2, -1, 1, Q("10.989 mm")),
    Sketcher.Constraint("DistanceX", -1, 1, 15, 2, Q("28.194 mm")),
    Sketcher.Constraint("DistanceY", 18, 2, -1, 1, Q("5.486 mm")),
    Sketcher.Constraint("DistanceY", -1, 1, 26, 2, Q("1.354 mm")),
    Sketcher.Constraint("DistanceX", -1, 1, 28, 2, Q("15.851 mm")),
    Sketcher.Constraint("DistanceY", -1, 1, 29, 2, Q("6.849 mm")),
    Sketcher.Constraint("DistanceY", -1, 1, 32, 2, Q("6.849 mm")),
    Sketcher.Constraint("DistanceX", -1, 1, 35, 2, Q("5.546 mm")),
    Sketcher.Constraint("DistanceY", -1, 1, 35, 2, Q("1.354 mm")),
    Sketcher.Constraint("DistanceX", -1, 1, 36, 2, Q("2.374 mm")),
    Sketcher.Constraint("DistanceX", 41, 2, -1, 1, Q("4.047 mm")),
    Sketcher.Constraint("DistanceY", 43, 2, -1, 1, Q("5.486 mm")),
    Sketcher.Constraint("DistanceX", 44, 2, -1, 1, Q("7.471 mm")),
    Sketcher.Constraint("DistanceY", 48, 2, -1, 1, Q("10.989 mm")),
    Sketcher.Constraint("DistanceY", 56, 2, -1, 1, Q("24.466 mm")),
    Sketcher.Constraint("DistanceX", 57, 2, -1, 1, Q("7.471 mm")),
    Sketcher.Constraint("DistanceX", 60, 2, -1, 1, Q("4.047 mm")),
    Sketcher.Constraint("DistanceY", 61, 2, -1, 1, Q("30.887 mm")),
    Sketcher.Constraint("DistanceX", -1, 1, 65, 2, Q("2.374 mm")),
    Sketcher.Constraint("DistanceX", -1, 1, 71, 2, Q("12.869 mm")),
    Sketcher.Constraint("DistanceX", -1, 1, 73, 2, Q("15.851 mm")),
    Sketcher.Constraint("DistanceY", 0, 3, -1, 1, Q("23.0856 mm")),
    Sketcher.Constraint("DistanceX", -1, 1, 1, 3, Q("11.8868 mm")),
    Sketcher.Constraint("DistanceY", 2, 3, -1, 1, Q("31.9027 mm")),
    Sketcher.Constraint("DistanceX", -1, 1, 3, 3, Q("11.8931 mm")),
    Sketcher.Constraint("DistanceY", 3, 3, -1, 1, Q("14.9655 mm")),
    Sketcher.Constraint("DistanceX", -1, 1, 4, 3, Q("30.5103 mm")),
    Sketcher.Constraint("DistanceX", -1, 1, 5, 3, Q("11.7774 mm")),
    Sketcher.Constraint("DistanceX", -1, 1, 6, 3, Q("24.8494 mm")),
    Sketcher.Constraint("DistanceX", -1, 1, 8, 3, Q("30.3693 mm")),
    Sketcher.Constraint("DistanceX", -1, 1, 9, 3, Q("11.8943 mm")),
    Sketcher.Constraint("DistanceX", -1, 1, 10, 3, Q("28.4187 mm")),
    Sketcher.Constraint("DistanceX", -1, 1, 14, 3, Q("30.3693 mm")),
    Sketcher.Constraint("DistanceX", -1, 1, 15, 3, Q("11.8866 mm")),
    Sketcher.Constraint("DistanceY", 15, 3, -1, 1, Q("14.9563 mm")),
    Sketcher.Constraint("DistanceX", -1, 1, 16, 3, Q("24.8488 mm")),
    Sketcher.Constraint("DistanceY", 17, 3, -1, 1, Q("14.9375 mm")),
    Sketcher.Constraint("DistanceX", -1, 1, 18, 3, Q("30.5103 mm")),
    Sketcher.Constraint("DistanceY", 18, 3, -1, 1, Q("12.4634 mm")),
    Sketcher.Constraint("DistanceX", -1, 1, 19, 3, Q("11.8882 mm")),
    Sketcher.Constraint("DistanceY", -1, 1, 20, 3, Q("1.9878 mm")),
    Sketcher.Constraint("DistanceY", 22, 3, -1, 1, Q("6.8292 mm")),
    Sketcher.Constraint("DistanceX", -1, 1, 23, 3, Q("11.8786 mm")),
    Sketcher.Constraint("DistanceY", 23, 3, -1, 1, Q("14.9627 mm")),
    Sketcher.Constraint("DistanceX", -1, 1, 24, 3, Q("14.3767 mm")),
    Sketcher.Constraint("DistanceY", -1, 1, 24, 3, Q("3.6702 mm")),
    Sketcher.Constraint("DistanceX", -1, 1, 25, 3, Q("11.8617 mm")),
    Sketcher.Constraint("DistanceY", 25, 3, -1, 1, Q("14.9974 mm")),
    Sketcher.Constraint("DistanceY", 26, 3, -1, 1, Q("1.9898 mm")),
    Sketcher.Constraint("DistanceX", -1, 1, 27, 3, Q("11.8813 mm")),
    Sketcher.Constraint("DistanceX", -1, 1, 28, 3, Q("8.4984 mm")),
    Sketcher.Constraint("DistanceY", -1, 1, 28, 3, Q("3.5292 mm")),
    Sketcher.Constraint("DistanceX", -1, 1, 29, 3, Q("11.8847 mm")),
    Sketcher.Constraint("DistanceX", -1, 1, 32, 3, Q("2.9514 mm")),
    Sketcher.Constraint("DistanceY", -1, 1, 34, 3, Q("3.5292 mm")),
    Sketcher.Constraint("DistanceX", -1, 1, 35, 3, Q("11.8816 mm")),
    Sketcher.Constraint("DistanceX", 36, 3, -1, 1, Q("1.7214 mm")),
    Sketcher.Constraint("DistanceX", -1, 1, 38, 3, Q("9.3886 mm")),
    Sketcher.Constraint("DistanceY", -1, 1, 38, 3, Q("3.6702 mm")),
    Sketcher.Constraint("DistanceX", -1, 1, 39, 3, Q("11.8902 mm")),
    Sketcher.Constraint("DistanceY", 39, 3, -1, 1, Q("14.9683 mm")),
    Sketcher.Constraint("DistanceX", 40, 3, -1, 1, Q("5.0625 mm")),
    Sketcher.Constraint("DistanceY", 40, 3, -1, 1, Q("6.8292 mm")),
    Sketcher.Constraint("DistanceX", -1, 1, 42, 3, Q("3.7545 mm")),
    Sketcher.Constraint("DistanceX", -1, 1, 43, 3, Q("11.8897 mm")),
    Sketcher.Constraint("DistanceY", 43, 3, -1, 1, Q("14.9628 mm")),
    Sketcher.Constraint("DistanceY", 46, 3, -1, 1, Q("1.3533 mm")),
    Sketcher.Constraint("DistanceX", -1, 1, 47, 3, Q("11.8876 mm")),
    Sketcher.Constraint("DistanceY", 47, 3, -1, 1, Q("14.9591 mm")),
    Sketcher.Constraint("DistanceY", 48, 3, -1, 1, Q("18.3417 mm")),
    Sketcher.Constraint("DistanceX", 50, 3, -1, 1, Q("4.6534 mm")),
    Sketcher.Constraint("DistanceX", 52, 3, -1, 1, Q("4.6534 mm")),
    Sketcher.Constraint("DistanceY", 52, 3, -1, 1, Q("23.8887 mm")),
    Sketcher.Constraint("DistanceX", -1, 1, 53, 3, Q("11.7293 mm")),
    Sketcher.Constraint("DistanceY", 53, 3, -1, 1, Q("14.9798 mm")),
    Sketcher.Constraint("DistanceX", -1, 1, 55, 3, Q("11.8778 mm")),
    Sketcher.Constraint("DistanceY", 55, 3, -1, 1, Q("14.9589 mm")),
    Sketcher.Constraint("DistanceY", 56, 3, -1, 1, Q("28.5615 mm")),
    Sketcher.Constraint("DistanceX", -1, 1, 57, 3, Q("11.9103 mm")),
    Sketcher.Constraint("DistanceX", -1, 1, 59, 3, Q("11.8919 mm")),
    Sketcher.Constraint("DistanceX", -1, 1, 60, 3, Q("3.7545 mm")),
    Sketcher.Constraint("DistanceX", 62, 3, -1, 1, Q("5.0625 mm")),
    Sketcher.Constraint("DistanceY", 63, 3, -1, 1, Q("14.9662 mm")),
    Sketcher.Constraint("DistanceX", -1, 1, 64, 3, Q("9.3886 mm")),
    Sketcher.Constraint("DistanceX", -1, 1, 65, 3, Q("11.8684 mm")),
    Sketcher.Constraint("DistanceY", 65, 3, -1, 1, Q("14.9846 mm")),
    Sketcher.Constraint("DistanceX", 66, 3, -1, 1, Q("1.7214 mm")),
    Sketcher.Constraint("DistanceX", -1, 1, 67, 3, Q("11.8844 mm")),
    Sketcher.Constraint("DistanceY", 67, 3, -1, 1, Q("14.9525 mm")),
    Sketcher.Constraint("DistanceX", -1, 1, 69, 3, Q("11.9092 mm")),
    Sketcher.Constraint("DistanceY", 69, 3, -1, 1, Q("14.8024 mm")),
    Sketcher.Constraint("DistanceX", -1, 1, 70, 3, Q("2.9514 mm")),
    Sketcher.Constraint("DistanceY", 73, 3, -1, 1, Q("15.1108 mm")),
    Sketcher.Constraint("DistanceX", -1, 1, 75, 3, Q("11.8842 mm")),
    Sketcher.Constraint("DistanceY", 75, 3, -1, 1, Q("14.9623 mm")),
    Sketcher.Constraint("DistanceX", -1, 1, 76, 3, Q("25.4868 mm")),
    Sketcher.Constraint("DistanceY", 76, 3, -1, 1, Q("27.9242 mm")),
    Sketcher.Constraint("DistanceX", -1, 1, 77, 3, Q("11.8364 mm")),
    Sketcher.Constraint("DistanceY", 77, 3, -1, 1, Q("14.8637 mm")),
    Sketcher.Constraint("DistanceX", -1, 1, 78, 3, Q("14.3767 mm")),
    Sketcher.Constraint("DistanceX", -1, 1, 79, 3, Q("11.8877 mm")),
    Sketcher.Constraint("DistanceY", 79, 3, -1, 1, Q("14.9647 mm")),
])
pad1 = doc.addObject("PartDesign::Pad", "Pad")
body.addObject(pad1)
pad1.Profile = sketch1
pad1.Length = 6

doc.recompute()
